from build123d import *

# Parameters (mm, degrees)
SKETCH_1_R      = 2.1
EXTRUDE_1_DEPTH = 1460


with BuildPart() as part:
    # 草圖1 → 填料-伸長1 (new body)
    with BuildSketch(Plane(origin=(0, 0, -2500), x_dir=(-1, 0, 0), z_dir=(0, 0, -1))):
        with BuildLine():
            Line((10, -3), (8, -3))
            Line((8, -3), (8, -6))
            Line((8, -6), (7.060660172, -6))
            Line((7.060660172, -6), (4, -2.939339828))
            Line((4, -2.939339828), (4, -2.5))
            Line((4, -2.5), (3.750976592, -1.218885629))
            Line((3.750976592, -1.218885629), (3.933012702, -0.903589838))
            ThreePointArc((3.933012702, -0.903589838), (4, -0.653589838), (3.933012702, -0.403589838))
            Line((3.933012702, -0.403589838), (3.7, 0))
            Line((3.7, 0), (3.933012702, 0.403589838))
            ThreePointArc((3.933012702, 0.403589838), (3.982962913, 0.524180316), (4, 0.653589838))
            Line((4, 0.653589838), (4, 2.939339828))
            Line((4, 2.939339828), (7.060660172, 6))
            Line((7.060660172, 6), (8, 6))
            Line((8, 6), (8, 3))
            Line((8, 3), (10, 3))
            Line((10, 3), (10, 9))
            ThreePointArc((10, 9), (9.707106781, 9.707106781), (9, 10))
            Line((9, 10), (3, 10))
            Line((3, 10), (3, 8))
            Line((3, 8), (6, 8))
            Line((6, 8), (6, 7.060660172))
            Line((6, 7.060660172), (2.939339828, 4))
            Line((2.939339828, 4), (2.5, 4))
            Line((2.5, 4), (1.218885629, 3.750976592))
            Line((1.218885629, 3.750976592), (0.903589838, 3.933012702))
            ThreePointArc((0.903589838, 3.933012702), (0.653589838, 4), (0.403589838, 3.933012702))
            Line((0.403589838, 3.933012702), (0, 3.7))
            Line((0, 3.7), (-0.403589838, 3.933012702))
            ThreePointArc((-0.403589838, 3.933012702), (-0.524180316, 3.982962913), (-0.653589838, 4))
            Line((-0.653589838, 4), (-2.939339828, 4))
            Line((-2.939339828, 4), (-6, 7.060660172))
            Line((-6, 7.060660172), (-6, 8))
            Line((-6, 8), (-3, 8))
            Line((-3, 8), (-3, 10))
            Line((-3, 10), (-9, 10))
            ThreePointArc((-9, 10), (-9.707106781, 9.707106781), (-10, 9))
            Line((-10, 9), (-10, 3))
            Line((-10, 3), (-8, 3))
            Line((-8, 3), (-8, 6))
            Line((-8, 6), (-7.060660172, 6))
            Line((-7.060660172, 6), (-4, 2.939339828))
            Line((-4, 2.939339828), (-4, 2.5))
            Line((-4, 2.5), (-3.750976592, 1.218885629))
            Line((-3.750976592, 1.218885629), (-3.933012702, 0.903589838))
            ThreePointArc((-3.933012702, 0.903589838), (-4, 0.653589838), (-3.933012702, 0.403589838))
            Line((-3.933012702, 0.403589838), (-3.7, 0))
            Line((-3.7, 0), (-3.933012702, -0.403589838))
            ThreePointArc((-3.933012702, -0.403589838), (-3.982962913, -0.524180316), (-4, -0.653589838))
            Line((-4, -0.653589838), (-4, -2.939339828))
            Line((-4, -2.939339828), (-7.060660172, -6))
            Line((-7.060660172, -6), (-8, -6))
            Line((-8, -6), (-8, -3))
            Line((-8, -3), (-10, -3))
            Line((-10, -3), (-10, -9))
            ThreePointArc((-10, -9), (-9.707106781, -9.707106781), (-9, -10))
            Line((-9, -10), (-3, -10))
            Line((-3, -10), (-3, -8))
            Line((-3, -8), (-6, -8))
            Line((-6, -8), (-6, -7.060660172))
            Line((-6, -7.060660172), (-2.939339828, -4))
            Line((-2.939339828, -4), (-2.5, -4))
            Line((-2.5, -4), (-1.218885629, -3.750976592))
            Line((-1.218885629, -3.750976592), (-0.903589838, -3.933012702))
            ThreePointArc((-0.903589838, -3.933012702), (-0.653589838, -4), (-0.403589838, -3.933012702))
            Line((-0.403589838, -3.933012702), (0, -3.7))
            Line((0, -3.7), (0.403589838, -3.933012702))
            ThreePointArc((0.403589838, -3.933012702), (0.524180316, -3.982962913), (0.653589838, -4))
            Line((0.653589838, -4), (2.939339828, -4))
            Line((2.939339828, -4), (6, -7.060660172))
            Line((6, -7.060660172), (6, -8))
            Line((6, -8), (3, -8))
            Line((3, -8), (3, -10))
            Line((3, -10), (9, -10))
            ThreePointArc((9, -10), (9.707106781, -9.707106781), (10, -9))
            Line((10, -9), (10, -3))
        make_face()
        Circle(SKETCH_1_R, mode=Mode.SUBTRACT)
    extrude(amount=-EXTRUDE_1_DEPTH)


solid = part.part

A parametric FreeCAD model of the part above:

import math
import FreeCAD as App
import Part
import Sketcher
Q = App.Units.Quantity

doc = App.newDocument("Part")
params = doc.addObject("Spreadsheet::Sheet", "Params")
for row, (alias, value) in enumerate([
    ("sketch1_radius", "1 mm"),
    ("sketch1_diameter", "4.2 mm"),
    ("sketch1_radius2", "0.5 mm"),
    ("sketch1_width", "2 mm"),
    ("sketch1_width2", "6 mm"),
    ("pad1_length", "1460 mm"),
], start=1):
    params.set(f"A{row}", alias)
    params.set(f"B{row}", "=" + value)
    params.setAlias(f"B{row}", alias)

body = doc.addObject("PartDesign::Body", "Body")

# Sketch on XY plane
sketch1 = body.newObject("Sketcher::SketchObject", "Sketch")
sketch1.AttachmentSupport = (doc.getObject("XY_Plane"), [""])
sketch1.MapMode = "FlatFace"
sketch1.AttachmentOffset = App.Placement(App.Vector(0, 0, -2500), App.Rotation())
sketch1.addGeometry([
    Part.LineSegment(App.Vector(-10, -3, 0), App.Vector(-8, -3, 0)),  # 0
    Part.LineSegment(App.Vector(-8, -3, 0), App.Vector(-8, -6, 0)),  # 1
    Part.LineSegment(App.Vector(-8, -6, 0), App.Vector(-7.06, -6, 0)),  # 2
    Part.LineSegment(App.Vector(-7.06, -6, 0), App.Vector(-4, -2.94, 0)),  # 3
    Part.LineSegment(App.Vector(-4, -2.94, 0), App.Vector(-4, -2.5, 0)),  # 4
    Part.LineSegment(App.Vector(-4, -2.5, 0), App.Vector(-3.75, -1.22, 0)),  # 5
    Part.LineSegment(App.Vector(-3.75, -1.22, 0), App.Vector(-3.93, -0.9, 0)),  # 6
    Part.ArcOfCircle(Part.Circle(App.Vector(-3.5, -0.65, 0), App.Vector(0, 0, 1), 0.5), math.radians(150), math.radians(210)),  # 7
    Part.LineSegment(App.Vector(-3.93, -0.4, 0), App.Vector(-3.7, 0, 0)),  # 8
    Part.LineSegment(App.Vector(-3.7, 0, 0), App.Vector(-3.93, 0.4, 0)),  # 9
    Part.ArcOfCircle(Part.Circle(App.Vector(-3.5, 0.65, 0), App.Vector(0, 0, 1), 0.5), math.radians(-180), math.radians(-150)),  # 10
    Part.LineSegment(App.Vector(-4, 0.65, 0), App.Vector(-4, 2.94, 0)),  # 11
    Part.LineSegment(App.Vector(-4, 2.94, 0), App.Vector(-7.06, 6, 0)),  # 12
    Part.LineSegment(App.Vector(-7.06, 6, 0), App.Vector(-8, 6, 0)),  # 13
    Part.LineSegment(App.Vector(-8, 6, 0), App.Vector(-8, 3, 0)),  # 14
    Part.LineSegment(App.Vector(-8, 3, 0), App.Vector(-10, 3, 0)),  # 15
    Part.LineSegment(App.Vector(-10, 3, 0), App.Vector(-10, 9, 0)),  # 16
    Part.ArcOfCircle(Part.Circle(App.Vector(-9, 9, 0), App.Vector(0, 0, 1), 1), math.radians(90), math.radians(180)),  # 17
    Part.LineSegment(App.Vector(-9, 10, 0), App.Vector(-3, 10, 0)),  # 18
    Part.LineSegment(App.Vector(-3, 10, 0), App.Vector(-3, 8, 0)),  # 19
    Part.LineSegment(App.Vector(-3, 8, 0), App.Vector(-6, 8, 0)),  # 20
    Part.LineSegment(App.Vector(-6, 8, 0), App.Vector(-6, 7.06, 0)),  # 21
    Part.LineSegment(App.Vector(-6, 7.06, 0), App.Vector(-2.94, 4, 0)),  # 22
    Part.LineSegment(App.Vector(-2.94, 4, 0), App.Vector(-2.5, 4, 0)),  # 23
    Part.LineSegment(App.Vector(-2.5, 4, 0), App.Vector(-1.22, 3.75, 0)),  # 24
    Part.LineSegment(App.Vector(-1.22, 3.75, 0), App.Vector(-0.9, 3.93, 0)),  # 25
    Part.ArcOfCircle(Part.Circle(App.Vector(-0.65, 3.5, 0), App.Vector(0, 0, 1), 0.5), math.radians(60), math.radians(120)),  # 26
    Part.LineSegment(App.Vector(-0.4, 3.93, 0), App.Vector(0, 3.7, 0)),  # 27
    Part.LineSegment(App.Vector(0, 3.7, 0), App.Vector(0.4, 3.93, 0)),  # 28
    Part.ArcOfCircle(Part.Circle(App.Vector(0.65, 3.5, 0), App.Vector(0, 0, 1), 0.5), math.radians(90), math.radians(120)),  # 29
    Part.LineSegment(App.Vector(0.65, 4, 0), App.Vector(2.94, 4, 0)),  # 30
    Part.LineSegment(App.Vector(2.94, 4, 0), App.Vector(6, 7.06, 0)),  # 31
    Part.LineSegment(App.Vector(6, 7.06, 0), App.Vector(6, 8, 0)),  # 32
    Part.LineSegment(App.Vector(6, 8, 0), App.Vector(3, 8, 0)),  # 33
    Part.LineSegment(App.Vector(3, 8, 0), App.Vector(3, 10, 0)),  # 34
    Part.LineSegment(App.Vector(3, 10, 0), App.Vector(9, 10, 0)),  # 35
    Part.ArcOfCircle(Part.Circle(App.Vector(9, 9, 0), App.Vector(0, 0, 1), 1), math.radians(0), math.radians(90)),  # 36
    Part.LineSegment(App.Vector(10, 9, 0), App.Vector(10, 3, 0)),  # 37
    Part.LineSegment(App.Vector(10, 3, 0), App.Vector(8, 3, 0)),  # 38
    Part.LineSegment(App.Vector(8, 3, 0), App.Vector(8, 6, 0)),  # 39
    Part.LineSegment(App.Vector(8, 6, 0), App.Vector(7.06, 6, 0)),  # 40
    Part.LineSegment(App.Vector(7.06, 6, 0), App.Vector(4, 2.94, 0)),  # 41
    Part.LineSegment(App.Vector(4, 2.94, 0), App.Vector(4, 2.5, 0)),  # 42
    Part.LineSegment(App.Vector(4, 2.5, 0), App.Vector(3.75, 1.22, 0)),  # 43
    Part.LineSegment(App.Vector(3.75, 1.22, 0), App.Vector(3.93, 0.9, 0)),  # 44
    Part.ArcOfCircle(Part.Circle(App.Vector(3.5, 0.65, 0), App.Vector(0, 0, 1), 0.5), math.radians(-30), math.radians(30)),  # 45
    Part.LineSegment(App.Vector(3.93, 0.4, 0), App.Vector(3.7, 0, 0)),  # 46
    Part.LineSegment(App.Vector(3.7, 0, 0), App.Vector(3.93, -0.4, 0)),  # 47
    Part.ArcOfCircle(Part.Circle(App.Vector(3.5, -0.65, 0), App.Vector(0, 0, 1), 0.5), math.radians(0), math.radians(30)),  # 48
    Part.LineSegment(App.Vector(4, -0.65, 0), App.Vector(4, -2.94, 0)),  # 49
    Part.LineSegment(App.Vector(4, -2.94, 0), App.Vector(7.06, -6, 0)),  # 50
    Part.LineSegment(App.Vector(7.06, -6, 0), App.Vector(8, -6, 0)),  # 51
    Part.LineSegment(App.Vector(8, -6, 0), App.Vector(8, -3, 0)),  # 52
    Part.LineSegment(App.Vector(8, -3, 0), App.Vector(10, -3, 0)),  # 53
    Part.LineSegment(App.Vector(10, -3, 0), App.Vector(10, -9, 0)),  # 54
    Part.ArcOfCircle(Part.Circle(App.Vector(9, -9, 0), App.Vector(0, 0, 1), 1), math.radians(-90), math.radians(0)),  # 55
    Part.LineSegment(App.Vector(9, -10, 0), App.Vector(3, -10, 0)),  # 56
    Part.LineSegment(App.Vector(3, -10, 0), App.Vector(3, -8, 0)),  # 57
    Part.LineSegment(App.Vector(3, -8, 0), App.Vector(6, -8, 0)),  # 58
    Part.LineSegment(App.Vector(6, -8, 0), App.Vector(6, -7.06, 0)),  # 59
    Part.LineSegment(App.Vector(6, -7.06, 0), App.Vector(2.94, -4, 0)),  # 60
    Part.LineSegment(App.Vector(2.94, -4, 0), App.Vector(2.5, -4, 0)),  # 61
    Part.LineSegment(App.Vector(2.5, -4, 0), App.Vector(1.22, -3.75, 0)),  # 62
    Part.LineSegment(App.Vector(1.22, -3.75, 0), App.Vector(0.9, -3.93, 0)),  # 63
    Part.ArcOfCircle(Part.Circle(App.Vector(0.65, -3.5, 0), App.Vector(0, 0, 1), 0.5), math.radians(-120), math.radians(-60)),  # 64
    Part.LineSegment(App.Vector(0.4, -3.93, 0), App.Vector(0, -3.7, 0)),  # 65
    Part.LineSegment(App.Vector(0, -3.7, 0), App.Vector(-0.4, -3.93, 0)),  # 66
    Part.ArcOfCircle(Part.Circle(App.Vector(-0.65, -3.5, 0), App.Vector(0, 0, 1), 0.5), math.radians(-90), math.radians(-60)),  # 67
    Part.LineSegment(App.Vector(-0.65, -4, 0), App.Vector(-2.94, -4, 0)),  # 68
    Part.LineSegment(App.Vector(-2.94, -4, 0), App.Vector(-6, -7.06, 0)),  # 69
    Part.LineSegment(App.Vector(-6, -7.06, 0), App.Vector(-6, -8, 0)),  # 70
    Part.LineSegment(App.Vector(-6, -8, 0), App.Vector(-3, -8, 0)),  # 71
    Part.LineSegment(App.Vector(-3, -8, 0), App.Vector(-3, -10, 0)),  # 72
    Part.LineSegment(App.Vector(-3, -10, 0), App.Vector(-9, -10, 0)),  # 73
    Part.ArcOfCircle(Part.Circle(App.Vector(-9, -9, 0), App.Vector(0, 0, 1), 1), math.radians(-180), math.radians(-90)),  # 74
    Part.LineSegment(App.Vector(-10, -9, 0), App.Vector(-10, -3, 0)),  # 75
    Part.Circle(App.Vector(0, 0, 0), App.Vector(0, 0, 1), 2.1),  # 76
], False)
sketch1.addConstraint([
    Sketcher.Constraint("Coincident", 0, 2, 1, 1),
    Sketcher.Constraint("Coincident", 1, 2, 2, 1),
    Sketcher.Constraint("Coincident", 2, 2, 3, 1),
    Sketcher.Constraint("Coincident", 3, 2, 4, 1),
    Sketcher.Constraint("Coincident", 4, 2, 5, 1),
    Sketcher.Constraint("Coincident", 5, 2, 6, 1),
    Sketcher.Constraint("Tangent", 6, 2, 7, 2),
    Sketcher.Constraint("Tangent", 7, 1, 8, 1),
    Sketcher.Constraint("Coincident", 8, 2, 9, 1),
    Sketcher.Constraint("Tangent", 9, 2, 10, 2),
    Sketcher.Constraint("Tangent", 10, 1, 11, 1),
    Sketcher.Constraint("Coincident", 11, 2, 12, 1),
    Sketcher.Constraint("Coincident", 12, 2, 13, 1),
    Sketcher.Constraint("Coincident", 13, 2, 14, 1),
    Sketcher.Constraint("Coincident", 14, 2, 15, 1),
    Sketcher.Constraint("Coincident", 15, 2, 16, 1),
    Sketcher.Constraint("Tangent", 16, 2, 17, 2),
    Sketcher.Constraint("Tangent", 17, 1, 18, 1),
    Sketcher.Constraint("Coincident", 18, 2, 19, 1),
    Sketcher.Constraint("Coincident", 19, 2, 20, 1),
    Sketcher.Constraint("Coincident", 20, 2, 21, 1),
    Sketcher.Constraint("Coincident", 21, 2, 22, 1),
    Sketcher.Constraint("Coincident", 22, 2, 23, 1),
    Sketcher.Constraint("Coincident", 23, 2, 24, 1),
    Sketcher.Constraint("Coincident", 24, 2, 25, 1),
    Sketcher.Constraint("Tangent", 25, 2, 26, 2),
    Sketcher.Constraint("Tangent", 26, 1, 27, 1),
    Sketcher.Constraint("Coincident", 27, 2, 28, 1),
    Sketcher.Constraint("Tangent", 28, 2, 29, 2),
    Sketcher.Constraint("Tangent", 29, 1, 30, 1),
    Sketcher.Constraint("Coincident", 30, 2, 31, 1),
    Sketcher.Constraint("Coincident", 31, 2, 32, 1),
    Sketcher.Constraint("Coincident", 32, 2, 33, 1),
    Sketcher.Constraint("Coincident", 33, 2, 34, 1),
    Sketcher.Constraint("Coincident", 34, 2, 35, 1),
    Sketcher.Constraint("Tangent", 35, 2, 36, 2),
    Sketcher.Constraint("Tangent", 36, 1, 37, 1),
    Sketcher.Constraint("Coincident", 37, 2, 38, 1),
    Sketcher.Constraint("Coincident", 38, 2, 39, 1),
    Sketcher.Constraint("Coincident", 39, 2, 40, 1),
    Sketcher.Constraint("Coincident", 40, 2, 41, 1),
    Sketcher.Constraint("Coincident", 41, 2, 42, 1),
    Sketcher.Constraint("Coincident", 42, 2, 43, 1),
    Sketcher.Constraint("Coincident", 43, 2, 44, 1),
    Sketcher.Constraint("Tangent", 44, 2, 45, 2),
    Sketcher.Constraint("Tangent", 45, 1, 46, 1),
    Sketcher.Constraint("Coincident", 46, 2, 47, 1),
    Sketcher.Constraint("Tangent", 47, 2, 48, 2),
    Sketcher.Constraint("Tangent", 48, 1, 49, 1),
    Sketcher.Constraint("Coincident", 49, 2, 50, 1),
    Sketcher.Constraint("Coincident", 50, 2, 51, 1),
    Sketcher.Constraint("Coincident", 51, 2, 52, 1),
    Sketcher.Constraint("Coincident", 52, 2, 53, 1),
    Sketcher.Constraint("Coincident", 53, 2, 54, 1),
    Sketcher.Constraint("Tangent", 54, 2, 55, 2),
    Sketcher.Constraint("Tangent", 55, 1, 56, 1),
    Sketcher.Constraint("Coincident", 56, 2, 57, 1),
    Sketcher.Constraint("Coincident", 57, 2, 58, 1),
    Sketcher.Constraint("Coincident", 58, 2, 59, 1),
    Sketcher.Constraint("Coincident", 59, 2, 60, 1),
    Sketcher.Constraint("Coincident", 60, 2, 61, 1),
    Sketcher.Constraint("Coincident", 61, 2, 62, 1),
    Sketcher.Constraint("Coincident", 62, 2, 63, 1),
    Sketcher.Constraint("Tangent", 63, 2, 64, 2),
    Sketcher.Constraint("Tangent", 64, 1, 65, 1),
    Sketcher.Constraint("Coincident", 65, 2, 66, 1),
    Sketcher.Constraint("Tangent", 66, 2, 67, 2),
    Sketcher.Constraint("Tangent", 67, 1, 68, 1),
    Sketcher.Constraint("Coincident", 68, 2, 69, 1),
    Sketcher.Constraint("Coincident", 69, 2, 70, 1),
    Sketcher.Constraint("Coincident", 70, 2, 71, 1),
    Sketcher.Constraint("Coincident", 71, 2, 72, 1),
    Sketcher.Constraint("Coincident", 72, 2, 73, 1),
    Sketcher.Constraint("Tangent", 73, 2, 74, 2),
    Sketcher.Constraint("Tangent", 74, 1, 75, 1),
    Sketcher.Constraint("Coincident", 75, 2, 0, 1),
    Sketcher.Constraint("Horizontal", 0),
    Sketcher.Constraint("Vertical", 1),
    Sketcher.Constraint("Horizontal", 2),
    Sketcher.Constraint("Vertical", 4),
    Sketcher.Constraint("Vertical", 11),
    Sketcher.Constraint("Horizontal", 13),
    Sketcher.Constraint("Vertical", 14),
    Sketcher.Constraint("Horizontal", 15),
    Sketcher.Constraint("Vertical", 16),
    Sketcher.Constraint("Horizontal", 18),
    Sketcher.Constraint("Vertical", 19),
    Sketcher.Constraint("Horizontal", 20),
    Sketcher.Constraint("Vertical", 21),
    Sketcher.Constraint("Horizontal", 23),
    Sketcher.Constraint("Horizontal", 30),
    Sketcher.Constraint("Vertical", 32),
    Sketcher.Constraint("Horizontal", 33),
    Sketcher.Constraint("Vertical", 34),
    Sketcher.Constraint("Horizontal", 35),
    Sketcher.Constraint("Vertical", 37),
    Sketcher.Constraint("Horizontal", 38),
    Sketcher.Constraint("Vertical", 39),
    Sketcher.Constraint("Horizontal", 40),
    Sketcher.Constraint("Vertical", 42),
    Sketcher.Constraint("Vertical", 49),
    Sketcher.Constraint("Horizontal", 51),
    Sketcher.Constraint("Vertical", 52),
    Sketcher.Constraint("Horizontal", 53),
    Sketcher.Constraint("Vertical", 54),
    Sketcher.Constraint("Horizontal", 56),
    Sketcher.Constraint("Vertical", 57),
    Sketcher.Constraint("Horizontal", 58),
    Sketcher.Constraint("Vertical", 59),
    Sketcher.Constraint("Horizontal", 61),
    Sketcher.Constraint("Horizontal", 68),
    Sketcher.Constraint("Vertical", 70),
    Sketcher.Constraint("Horizontal", 71),
    Sketcher.Constraint("Vertical", 72),
    Sketcher.Constraint("Horizontal", 73),
    Sketcher.Constraint("Vertical", 75),
    Sketcher.Constraint("Coincident", 76, 3, -1, 1),
    Sketcher.Constraint("Equal", 7, 10),
    Sketcher.Constraint("Equal", 10, 26),
    Sketcher.Constraint("Equal", 26, 29),
    Sketcher.Constraint("Equal", 17, 36),
    Sketcher.Constraint("Equal", 29, 45),
    Sketcher.Constraint("Equal", 45, 48),
    Sketcher.Constraint("Equal", 36, 55),
    Sketcher.Constraint("Equal", 48, 64),
    Sketcher.Constraint("Equal", 64, 67),
    Sketcher.Constraint("Equal", 55, 74),
    Sketcher.Constraint("Symmetric", 7, 3, 45, 3, -1, 1),
    Sketcher.Constraint("Symmetric", 10, 3, 48, 3, -1, 1),
    Sketcher.Constraint("Symmetric", 17, 3, 55, 3, -1, 1),
    Sketcher.Constraint("Symmetric", 26, 3, 64, 3, -1, 1),
    Sketcher.Constraint("Symmetric", 29, 3, 67, 3, -1, 1),
    Sketcher.Constraint("Symmetric", 36, 3, 74, 3, -1, 1),
    Sketcher.Constraint("Symmetric", 0, 2, 38, 2, -1, 1),
    Sketcher.Constraint("Symmetric", 2, 2, 40, 2, -1, 1),
    Sketcher.Constraint("Symmetric", 3, 2, 41, 2, -1, 1),
    Sketcher.Constraint("Symmetric", 5, 2, 43, 2, -1, 1),
    Sketcher.Constraint("Symmetric", 8, 2, 46, 2, -1, 1),
    Sketcher.Constraint("Symmetric", 12, 2, 50, 2, -1, 1),
    Sketcher.Constraint("Symmetric", 14, 2, 52, 2, -1, 1),
    Sketcher.Constraint("Symmetric", 19, 2, 57, 2, -1, 1),
    Sketcher.Constraint("Symmetric", 21, 2, 59, 2, -1, 1),
    Sketcher.Constraint("Symmetric", 22, 2, 60, 2, -1, 1),
    Sketcher.Constraint("Symmetric", 24, 2, 62, 2, -1, 1),
    Sketcher.Constraint("Symmetric", 27, 2, 65, 2, -1, 1),
    Sketcher.Constraint("Symmetric", 31, 2, 69, 2, -1, 1),
    Sketcher.Constraint("Symmetric", 33, 2, 71, 2, -1, 1),
    Sketcher.Constraint("Symmetric", 26, 3, 29, 3, -2),
    Sketcher.Constraint("Symmetric", 17, 3, 36, 3, -2),
    Sketcher.Constraint("Symmetric", 10, 3, 45, 3, -2),
    Sketcher.Constraint("Symmetric", 22, 2, 30, 2, -2),
    Sketcher.Constraint("Symmetric", 21, 2, 31, 2, -2),
    Sketcher.Constraint("Symmetric", 19, 2, 33, 2, -2),
    Sketcher.Constraint("Symmetric", 14, 2, 38, 2, -2),
    Sketcher.Constraint("Symmetric", 12, 2, 40, 2, -2),
    Sketcher.Constraint("Symmetric", 11, 2, 41, 2, -2),
    Sketcher.Constraint("PointOnObject", 8, 2, -1),
    Sketcher.Constraint("PointOnObject", 27, 2, -2),
    Sketcher.Constraint("Parallel", 6, 9),
    Sketcher.Constraint("Perpendicular", 3, 12),
    Sketcher.Constraint("Parallel", 12, 22),
    Sketcher.Constraint("Perpendicular", 5, 24),
    Sketcher.Constraint("Perpendicular", 9, 25),
    Sketcher.Constraint("Perpendicular", 8, 27),
    Sketcher.Constraint("Perpendicular", 24, 43),
    Sketcher.Constraint("Perpendicular", 41, 50),
    Sketcher.Constraint("Perpendicular", 43, 62),
    Sketcher.Constraint("Perpendicular", 60, 69),
    Sketcher.Constraint("Equal", 71, 1),
    Sketcher.Constraint("Equal", 61, 4),
    Sketcher.Constraint("Equal", 68, 11),
    Sketcher.Constraint("Equal", 73, 16),
    Sketcher.Constraint("Equal", 53, 19),
    Sketcher.Constraint("Equal", 51, 21),
    Sketcher.Constraint("Equal", 12, 22),
    Sketcher.Constraint("Equal", 9, 27),
    Sketcher.Constraint("Radius", 17, Q("1 mm")),
    Sketcher.Constraint("Diameter", 76, Q("4.2 mm")),
    Sketcher.Constraint("Radius", 7, Q("0.5 mm")),
    Sketcher.Constraint("DistanceX", 0, 1, 0, 2, Q("2 mm")),
    Sketcher.Constraint("DistanceX", 18, 1, 18, 2, Q("6 mm")),
    Sketcher.Constraint("DistanceX", 20, 2, 20, 1, Q("3 mm")),
    Sketcher.Constraint("Angle", 5, Q("79 deg")),
    Sketcher.Constraint("Angle", 6, Q("120 deg")),
    Sketcher.Constraint("DistanceX", 17, 3, -1, 1, Q("9 mm")),
    Sketcher.Constraint("DistanceX", 3, 2, -1, 1, Q("4 mm")),
    Sketcher.Constraint("DistanceY", 4, 2, -1, 1, Q("2.5 mm")),
    Sketcher.Constraint("DistanceX", 8, 2, -1, 1, Q("3.7 mm")),
    Sketcher.Constraint("DistanceX", 2, 1, 2, 2, Q("0.93934 mm")),
])
sketch1.setExpression("Constraints[176]", "Params.sketch1_radius")
sketch1.setExpression("Constraints[177]", "Params.sketch1_diameter")
sketch1.setExpression("Constraints[178]", "Params.sketch1_radius2")
sketch1.setExpression("Constraints[179]", "Params.sketch1_width")
sketch1.setExpression("Constraints[180]", "Params.sketch1_width2")
pad1 = body.newObject("PartDesign::Pad", "Pad")
pad1.Profile = sketch1
pad1.setExpression("Length", "Params.pad1_length")

doc.recompute()
